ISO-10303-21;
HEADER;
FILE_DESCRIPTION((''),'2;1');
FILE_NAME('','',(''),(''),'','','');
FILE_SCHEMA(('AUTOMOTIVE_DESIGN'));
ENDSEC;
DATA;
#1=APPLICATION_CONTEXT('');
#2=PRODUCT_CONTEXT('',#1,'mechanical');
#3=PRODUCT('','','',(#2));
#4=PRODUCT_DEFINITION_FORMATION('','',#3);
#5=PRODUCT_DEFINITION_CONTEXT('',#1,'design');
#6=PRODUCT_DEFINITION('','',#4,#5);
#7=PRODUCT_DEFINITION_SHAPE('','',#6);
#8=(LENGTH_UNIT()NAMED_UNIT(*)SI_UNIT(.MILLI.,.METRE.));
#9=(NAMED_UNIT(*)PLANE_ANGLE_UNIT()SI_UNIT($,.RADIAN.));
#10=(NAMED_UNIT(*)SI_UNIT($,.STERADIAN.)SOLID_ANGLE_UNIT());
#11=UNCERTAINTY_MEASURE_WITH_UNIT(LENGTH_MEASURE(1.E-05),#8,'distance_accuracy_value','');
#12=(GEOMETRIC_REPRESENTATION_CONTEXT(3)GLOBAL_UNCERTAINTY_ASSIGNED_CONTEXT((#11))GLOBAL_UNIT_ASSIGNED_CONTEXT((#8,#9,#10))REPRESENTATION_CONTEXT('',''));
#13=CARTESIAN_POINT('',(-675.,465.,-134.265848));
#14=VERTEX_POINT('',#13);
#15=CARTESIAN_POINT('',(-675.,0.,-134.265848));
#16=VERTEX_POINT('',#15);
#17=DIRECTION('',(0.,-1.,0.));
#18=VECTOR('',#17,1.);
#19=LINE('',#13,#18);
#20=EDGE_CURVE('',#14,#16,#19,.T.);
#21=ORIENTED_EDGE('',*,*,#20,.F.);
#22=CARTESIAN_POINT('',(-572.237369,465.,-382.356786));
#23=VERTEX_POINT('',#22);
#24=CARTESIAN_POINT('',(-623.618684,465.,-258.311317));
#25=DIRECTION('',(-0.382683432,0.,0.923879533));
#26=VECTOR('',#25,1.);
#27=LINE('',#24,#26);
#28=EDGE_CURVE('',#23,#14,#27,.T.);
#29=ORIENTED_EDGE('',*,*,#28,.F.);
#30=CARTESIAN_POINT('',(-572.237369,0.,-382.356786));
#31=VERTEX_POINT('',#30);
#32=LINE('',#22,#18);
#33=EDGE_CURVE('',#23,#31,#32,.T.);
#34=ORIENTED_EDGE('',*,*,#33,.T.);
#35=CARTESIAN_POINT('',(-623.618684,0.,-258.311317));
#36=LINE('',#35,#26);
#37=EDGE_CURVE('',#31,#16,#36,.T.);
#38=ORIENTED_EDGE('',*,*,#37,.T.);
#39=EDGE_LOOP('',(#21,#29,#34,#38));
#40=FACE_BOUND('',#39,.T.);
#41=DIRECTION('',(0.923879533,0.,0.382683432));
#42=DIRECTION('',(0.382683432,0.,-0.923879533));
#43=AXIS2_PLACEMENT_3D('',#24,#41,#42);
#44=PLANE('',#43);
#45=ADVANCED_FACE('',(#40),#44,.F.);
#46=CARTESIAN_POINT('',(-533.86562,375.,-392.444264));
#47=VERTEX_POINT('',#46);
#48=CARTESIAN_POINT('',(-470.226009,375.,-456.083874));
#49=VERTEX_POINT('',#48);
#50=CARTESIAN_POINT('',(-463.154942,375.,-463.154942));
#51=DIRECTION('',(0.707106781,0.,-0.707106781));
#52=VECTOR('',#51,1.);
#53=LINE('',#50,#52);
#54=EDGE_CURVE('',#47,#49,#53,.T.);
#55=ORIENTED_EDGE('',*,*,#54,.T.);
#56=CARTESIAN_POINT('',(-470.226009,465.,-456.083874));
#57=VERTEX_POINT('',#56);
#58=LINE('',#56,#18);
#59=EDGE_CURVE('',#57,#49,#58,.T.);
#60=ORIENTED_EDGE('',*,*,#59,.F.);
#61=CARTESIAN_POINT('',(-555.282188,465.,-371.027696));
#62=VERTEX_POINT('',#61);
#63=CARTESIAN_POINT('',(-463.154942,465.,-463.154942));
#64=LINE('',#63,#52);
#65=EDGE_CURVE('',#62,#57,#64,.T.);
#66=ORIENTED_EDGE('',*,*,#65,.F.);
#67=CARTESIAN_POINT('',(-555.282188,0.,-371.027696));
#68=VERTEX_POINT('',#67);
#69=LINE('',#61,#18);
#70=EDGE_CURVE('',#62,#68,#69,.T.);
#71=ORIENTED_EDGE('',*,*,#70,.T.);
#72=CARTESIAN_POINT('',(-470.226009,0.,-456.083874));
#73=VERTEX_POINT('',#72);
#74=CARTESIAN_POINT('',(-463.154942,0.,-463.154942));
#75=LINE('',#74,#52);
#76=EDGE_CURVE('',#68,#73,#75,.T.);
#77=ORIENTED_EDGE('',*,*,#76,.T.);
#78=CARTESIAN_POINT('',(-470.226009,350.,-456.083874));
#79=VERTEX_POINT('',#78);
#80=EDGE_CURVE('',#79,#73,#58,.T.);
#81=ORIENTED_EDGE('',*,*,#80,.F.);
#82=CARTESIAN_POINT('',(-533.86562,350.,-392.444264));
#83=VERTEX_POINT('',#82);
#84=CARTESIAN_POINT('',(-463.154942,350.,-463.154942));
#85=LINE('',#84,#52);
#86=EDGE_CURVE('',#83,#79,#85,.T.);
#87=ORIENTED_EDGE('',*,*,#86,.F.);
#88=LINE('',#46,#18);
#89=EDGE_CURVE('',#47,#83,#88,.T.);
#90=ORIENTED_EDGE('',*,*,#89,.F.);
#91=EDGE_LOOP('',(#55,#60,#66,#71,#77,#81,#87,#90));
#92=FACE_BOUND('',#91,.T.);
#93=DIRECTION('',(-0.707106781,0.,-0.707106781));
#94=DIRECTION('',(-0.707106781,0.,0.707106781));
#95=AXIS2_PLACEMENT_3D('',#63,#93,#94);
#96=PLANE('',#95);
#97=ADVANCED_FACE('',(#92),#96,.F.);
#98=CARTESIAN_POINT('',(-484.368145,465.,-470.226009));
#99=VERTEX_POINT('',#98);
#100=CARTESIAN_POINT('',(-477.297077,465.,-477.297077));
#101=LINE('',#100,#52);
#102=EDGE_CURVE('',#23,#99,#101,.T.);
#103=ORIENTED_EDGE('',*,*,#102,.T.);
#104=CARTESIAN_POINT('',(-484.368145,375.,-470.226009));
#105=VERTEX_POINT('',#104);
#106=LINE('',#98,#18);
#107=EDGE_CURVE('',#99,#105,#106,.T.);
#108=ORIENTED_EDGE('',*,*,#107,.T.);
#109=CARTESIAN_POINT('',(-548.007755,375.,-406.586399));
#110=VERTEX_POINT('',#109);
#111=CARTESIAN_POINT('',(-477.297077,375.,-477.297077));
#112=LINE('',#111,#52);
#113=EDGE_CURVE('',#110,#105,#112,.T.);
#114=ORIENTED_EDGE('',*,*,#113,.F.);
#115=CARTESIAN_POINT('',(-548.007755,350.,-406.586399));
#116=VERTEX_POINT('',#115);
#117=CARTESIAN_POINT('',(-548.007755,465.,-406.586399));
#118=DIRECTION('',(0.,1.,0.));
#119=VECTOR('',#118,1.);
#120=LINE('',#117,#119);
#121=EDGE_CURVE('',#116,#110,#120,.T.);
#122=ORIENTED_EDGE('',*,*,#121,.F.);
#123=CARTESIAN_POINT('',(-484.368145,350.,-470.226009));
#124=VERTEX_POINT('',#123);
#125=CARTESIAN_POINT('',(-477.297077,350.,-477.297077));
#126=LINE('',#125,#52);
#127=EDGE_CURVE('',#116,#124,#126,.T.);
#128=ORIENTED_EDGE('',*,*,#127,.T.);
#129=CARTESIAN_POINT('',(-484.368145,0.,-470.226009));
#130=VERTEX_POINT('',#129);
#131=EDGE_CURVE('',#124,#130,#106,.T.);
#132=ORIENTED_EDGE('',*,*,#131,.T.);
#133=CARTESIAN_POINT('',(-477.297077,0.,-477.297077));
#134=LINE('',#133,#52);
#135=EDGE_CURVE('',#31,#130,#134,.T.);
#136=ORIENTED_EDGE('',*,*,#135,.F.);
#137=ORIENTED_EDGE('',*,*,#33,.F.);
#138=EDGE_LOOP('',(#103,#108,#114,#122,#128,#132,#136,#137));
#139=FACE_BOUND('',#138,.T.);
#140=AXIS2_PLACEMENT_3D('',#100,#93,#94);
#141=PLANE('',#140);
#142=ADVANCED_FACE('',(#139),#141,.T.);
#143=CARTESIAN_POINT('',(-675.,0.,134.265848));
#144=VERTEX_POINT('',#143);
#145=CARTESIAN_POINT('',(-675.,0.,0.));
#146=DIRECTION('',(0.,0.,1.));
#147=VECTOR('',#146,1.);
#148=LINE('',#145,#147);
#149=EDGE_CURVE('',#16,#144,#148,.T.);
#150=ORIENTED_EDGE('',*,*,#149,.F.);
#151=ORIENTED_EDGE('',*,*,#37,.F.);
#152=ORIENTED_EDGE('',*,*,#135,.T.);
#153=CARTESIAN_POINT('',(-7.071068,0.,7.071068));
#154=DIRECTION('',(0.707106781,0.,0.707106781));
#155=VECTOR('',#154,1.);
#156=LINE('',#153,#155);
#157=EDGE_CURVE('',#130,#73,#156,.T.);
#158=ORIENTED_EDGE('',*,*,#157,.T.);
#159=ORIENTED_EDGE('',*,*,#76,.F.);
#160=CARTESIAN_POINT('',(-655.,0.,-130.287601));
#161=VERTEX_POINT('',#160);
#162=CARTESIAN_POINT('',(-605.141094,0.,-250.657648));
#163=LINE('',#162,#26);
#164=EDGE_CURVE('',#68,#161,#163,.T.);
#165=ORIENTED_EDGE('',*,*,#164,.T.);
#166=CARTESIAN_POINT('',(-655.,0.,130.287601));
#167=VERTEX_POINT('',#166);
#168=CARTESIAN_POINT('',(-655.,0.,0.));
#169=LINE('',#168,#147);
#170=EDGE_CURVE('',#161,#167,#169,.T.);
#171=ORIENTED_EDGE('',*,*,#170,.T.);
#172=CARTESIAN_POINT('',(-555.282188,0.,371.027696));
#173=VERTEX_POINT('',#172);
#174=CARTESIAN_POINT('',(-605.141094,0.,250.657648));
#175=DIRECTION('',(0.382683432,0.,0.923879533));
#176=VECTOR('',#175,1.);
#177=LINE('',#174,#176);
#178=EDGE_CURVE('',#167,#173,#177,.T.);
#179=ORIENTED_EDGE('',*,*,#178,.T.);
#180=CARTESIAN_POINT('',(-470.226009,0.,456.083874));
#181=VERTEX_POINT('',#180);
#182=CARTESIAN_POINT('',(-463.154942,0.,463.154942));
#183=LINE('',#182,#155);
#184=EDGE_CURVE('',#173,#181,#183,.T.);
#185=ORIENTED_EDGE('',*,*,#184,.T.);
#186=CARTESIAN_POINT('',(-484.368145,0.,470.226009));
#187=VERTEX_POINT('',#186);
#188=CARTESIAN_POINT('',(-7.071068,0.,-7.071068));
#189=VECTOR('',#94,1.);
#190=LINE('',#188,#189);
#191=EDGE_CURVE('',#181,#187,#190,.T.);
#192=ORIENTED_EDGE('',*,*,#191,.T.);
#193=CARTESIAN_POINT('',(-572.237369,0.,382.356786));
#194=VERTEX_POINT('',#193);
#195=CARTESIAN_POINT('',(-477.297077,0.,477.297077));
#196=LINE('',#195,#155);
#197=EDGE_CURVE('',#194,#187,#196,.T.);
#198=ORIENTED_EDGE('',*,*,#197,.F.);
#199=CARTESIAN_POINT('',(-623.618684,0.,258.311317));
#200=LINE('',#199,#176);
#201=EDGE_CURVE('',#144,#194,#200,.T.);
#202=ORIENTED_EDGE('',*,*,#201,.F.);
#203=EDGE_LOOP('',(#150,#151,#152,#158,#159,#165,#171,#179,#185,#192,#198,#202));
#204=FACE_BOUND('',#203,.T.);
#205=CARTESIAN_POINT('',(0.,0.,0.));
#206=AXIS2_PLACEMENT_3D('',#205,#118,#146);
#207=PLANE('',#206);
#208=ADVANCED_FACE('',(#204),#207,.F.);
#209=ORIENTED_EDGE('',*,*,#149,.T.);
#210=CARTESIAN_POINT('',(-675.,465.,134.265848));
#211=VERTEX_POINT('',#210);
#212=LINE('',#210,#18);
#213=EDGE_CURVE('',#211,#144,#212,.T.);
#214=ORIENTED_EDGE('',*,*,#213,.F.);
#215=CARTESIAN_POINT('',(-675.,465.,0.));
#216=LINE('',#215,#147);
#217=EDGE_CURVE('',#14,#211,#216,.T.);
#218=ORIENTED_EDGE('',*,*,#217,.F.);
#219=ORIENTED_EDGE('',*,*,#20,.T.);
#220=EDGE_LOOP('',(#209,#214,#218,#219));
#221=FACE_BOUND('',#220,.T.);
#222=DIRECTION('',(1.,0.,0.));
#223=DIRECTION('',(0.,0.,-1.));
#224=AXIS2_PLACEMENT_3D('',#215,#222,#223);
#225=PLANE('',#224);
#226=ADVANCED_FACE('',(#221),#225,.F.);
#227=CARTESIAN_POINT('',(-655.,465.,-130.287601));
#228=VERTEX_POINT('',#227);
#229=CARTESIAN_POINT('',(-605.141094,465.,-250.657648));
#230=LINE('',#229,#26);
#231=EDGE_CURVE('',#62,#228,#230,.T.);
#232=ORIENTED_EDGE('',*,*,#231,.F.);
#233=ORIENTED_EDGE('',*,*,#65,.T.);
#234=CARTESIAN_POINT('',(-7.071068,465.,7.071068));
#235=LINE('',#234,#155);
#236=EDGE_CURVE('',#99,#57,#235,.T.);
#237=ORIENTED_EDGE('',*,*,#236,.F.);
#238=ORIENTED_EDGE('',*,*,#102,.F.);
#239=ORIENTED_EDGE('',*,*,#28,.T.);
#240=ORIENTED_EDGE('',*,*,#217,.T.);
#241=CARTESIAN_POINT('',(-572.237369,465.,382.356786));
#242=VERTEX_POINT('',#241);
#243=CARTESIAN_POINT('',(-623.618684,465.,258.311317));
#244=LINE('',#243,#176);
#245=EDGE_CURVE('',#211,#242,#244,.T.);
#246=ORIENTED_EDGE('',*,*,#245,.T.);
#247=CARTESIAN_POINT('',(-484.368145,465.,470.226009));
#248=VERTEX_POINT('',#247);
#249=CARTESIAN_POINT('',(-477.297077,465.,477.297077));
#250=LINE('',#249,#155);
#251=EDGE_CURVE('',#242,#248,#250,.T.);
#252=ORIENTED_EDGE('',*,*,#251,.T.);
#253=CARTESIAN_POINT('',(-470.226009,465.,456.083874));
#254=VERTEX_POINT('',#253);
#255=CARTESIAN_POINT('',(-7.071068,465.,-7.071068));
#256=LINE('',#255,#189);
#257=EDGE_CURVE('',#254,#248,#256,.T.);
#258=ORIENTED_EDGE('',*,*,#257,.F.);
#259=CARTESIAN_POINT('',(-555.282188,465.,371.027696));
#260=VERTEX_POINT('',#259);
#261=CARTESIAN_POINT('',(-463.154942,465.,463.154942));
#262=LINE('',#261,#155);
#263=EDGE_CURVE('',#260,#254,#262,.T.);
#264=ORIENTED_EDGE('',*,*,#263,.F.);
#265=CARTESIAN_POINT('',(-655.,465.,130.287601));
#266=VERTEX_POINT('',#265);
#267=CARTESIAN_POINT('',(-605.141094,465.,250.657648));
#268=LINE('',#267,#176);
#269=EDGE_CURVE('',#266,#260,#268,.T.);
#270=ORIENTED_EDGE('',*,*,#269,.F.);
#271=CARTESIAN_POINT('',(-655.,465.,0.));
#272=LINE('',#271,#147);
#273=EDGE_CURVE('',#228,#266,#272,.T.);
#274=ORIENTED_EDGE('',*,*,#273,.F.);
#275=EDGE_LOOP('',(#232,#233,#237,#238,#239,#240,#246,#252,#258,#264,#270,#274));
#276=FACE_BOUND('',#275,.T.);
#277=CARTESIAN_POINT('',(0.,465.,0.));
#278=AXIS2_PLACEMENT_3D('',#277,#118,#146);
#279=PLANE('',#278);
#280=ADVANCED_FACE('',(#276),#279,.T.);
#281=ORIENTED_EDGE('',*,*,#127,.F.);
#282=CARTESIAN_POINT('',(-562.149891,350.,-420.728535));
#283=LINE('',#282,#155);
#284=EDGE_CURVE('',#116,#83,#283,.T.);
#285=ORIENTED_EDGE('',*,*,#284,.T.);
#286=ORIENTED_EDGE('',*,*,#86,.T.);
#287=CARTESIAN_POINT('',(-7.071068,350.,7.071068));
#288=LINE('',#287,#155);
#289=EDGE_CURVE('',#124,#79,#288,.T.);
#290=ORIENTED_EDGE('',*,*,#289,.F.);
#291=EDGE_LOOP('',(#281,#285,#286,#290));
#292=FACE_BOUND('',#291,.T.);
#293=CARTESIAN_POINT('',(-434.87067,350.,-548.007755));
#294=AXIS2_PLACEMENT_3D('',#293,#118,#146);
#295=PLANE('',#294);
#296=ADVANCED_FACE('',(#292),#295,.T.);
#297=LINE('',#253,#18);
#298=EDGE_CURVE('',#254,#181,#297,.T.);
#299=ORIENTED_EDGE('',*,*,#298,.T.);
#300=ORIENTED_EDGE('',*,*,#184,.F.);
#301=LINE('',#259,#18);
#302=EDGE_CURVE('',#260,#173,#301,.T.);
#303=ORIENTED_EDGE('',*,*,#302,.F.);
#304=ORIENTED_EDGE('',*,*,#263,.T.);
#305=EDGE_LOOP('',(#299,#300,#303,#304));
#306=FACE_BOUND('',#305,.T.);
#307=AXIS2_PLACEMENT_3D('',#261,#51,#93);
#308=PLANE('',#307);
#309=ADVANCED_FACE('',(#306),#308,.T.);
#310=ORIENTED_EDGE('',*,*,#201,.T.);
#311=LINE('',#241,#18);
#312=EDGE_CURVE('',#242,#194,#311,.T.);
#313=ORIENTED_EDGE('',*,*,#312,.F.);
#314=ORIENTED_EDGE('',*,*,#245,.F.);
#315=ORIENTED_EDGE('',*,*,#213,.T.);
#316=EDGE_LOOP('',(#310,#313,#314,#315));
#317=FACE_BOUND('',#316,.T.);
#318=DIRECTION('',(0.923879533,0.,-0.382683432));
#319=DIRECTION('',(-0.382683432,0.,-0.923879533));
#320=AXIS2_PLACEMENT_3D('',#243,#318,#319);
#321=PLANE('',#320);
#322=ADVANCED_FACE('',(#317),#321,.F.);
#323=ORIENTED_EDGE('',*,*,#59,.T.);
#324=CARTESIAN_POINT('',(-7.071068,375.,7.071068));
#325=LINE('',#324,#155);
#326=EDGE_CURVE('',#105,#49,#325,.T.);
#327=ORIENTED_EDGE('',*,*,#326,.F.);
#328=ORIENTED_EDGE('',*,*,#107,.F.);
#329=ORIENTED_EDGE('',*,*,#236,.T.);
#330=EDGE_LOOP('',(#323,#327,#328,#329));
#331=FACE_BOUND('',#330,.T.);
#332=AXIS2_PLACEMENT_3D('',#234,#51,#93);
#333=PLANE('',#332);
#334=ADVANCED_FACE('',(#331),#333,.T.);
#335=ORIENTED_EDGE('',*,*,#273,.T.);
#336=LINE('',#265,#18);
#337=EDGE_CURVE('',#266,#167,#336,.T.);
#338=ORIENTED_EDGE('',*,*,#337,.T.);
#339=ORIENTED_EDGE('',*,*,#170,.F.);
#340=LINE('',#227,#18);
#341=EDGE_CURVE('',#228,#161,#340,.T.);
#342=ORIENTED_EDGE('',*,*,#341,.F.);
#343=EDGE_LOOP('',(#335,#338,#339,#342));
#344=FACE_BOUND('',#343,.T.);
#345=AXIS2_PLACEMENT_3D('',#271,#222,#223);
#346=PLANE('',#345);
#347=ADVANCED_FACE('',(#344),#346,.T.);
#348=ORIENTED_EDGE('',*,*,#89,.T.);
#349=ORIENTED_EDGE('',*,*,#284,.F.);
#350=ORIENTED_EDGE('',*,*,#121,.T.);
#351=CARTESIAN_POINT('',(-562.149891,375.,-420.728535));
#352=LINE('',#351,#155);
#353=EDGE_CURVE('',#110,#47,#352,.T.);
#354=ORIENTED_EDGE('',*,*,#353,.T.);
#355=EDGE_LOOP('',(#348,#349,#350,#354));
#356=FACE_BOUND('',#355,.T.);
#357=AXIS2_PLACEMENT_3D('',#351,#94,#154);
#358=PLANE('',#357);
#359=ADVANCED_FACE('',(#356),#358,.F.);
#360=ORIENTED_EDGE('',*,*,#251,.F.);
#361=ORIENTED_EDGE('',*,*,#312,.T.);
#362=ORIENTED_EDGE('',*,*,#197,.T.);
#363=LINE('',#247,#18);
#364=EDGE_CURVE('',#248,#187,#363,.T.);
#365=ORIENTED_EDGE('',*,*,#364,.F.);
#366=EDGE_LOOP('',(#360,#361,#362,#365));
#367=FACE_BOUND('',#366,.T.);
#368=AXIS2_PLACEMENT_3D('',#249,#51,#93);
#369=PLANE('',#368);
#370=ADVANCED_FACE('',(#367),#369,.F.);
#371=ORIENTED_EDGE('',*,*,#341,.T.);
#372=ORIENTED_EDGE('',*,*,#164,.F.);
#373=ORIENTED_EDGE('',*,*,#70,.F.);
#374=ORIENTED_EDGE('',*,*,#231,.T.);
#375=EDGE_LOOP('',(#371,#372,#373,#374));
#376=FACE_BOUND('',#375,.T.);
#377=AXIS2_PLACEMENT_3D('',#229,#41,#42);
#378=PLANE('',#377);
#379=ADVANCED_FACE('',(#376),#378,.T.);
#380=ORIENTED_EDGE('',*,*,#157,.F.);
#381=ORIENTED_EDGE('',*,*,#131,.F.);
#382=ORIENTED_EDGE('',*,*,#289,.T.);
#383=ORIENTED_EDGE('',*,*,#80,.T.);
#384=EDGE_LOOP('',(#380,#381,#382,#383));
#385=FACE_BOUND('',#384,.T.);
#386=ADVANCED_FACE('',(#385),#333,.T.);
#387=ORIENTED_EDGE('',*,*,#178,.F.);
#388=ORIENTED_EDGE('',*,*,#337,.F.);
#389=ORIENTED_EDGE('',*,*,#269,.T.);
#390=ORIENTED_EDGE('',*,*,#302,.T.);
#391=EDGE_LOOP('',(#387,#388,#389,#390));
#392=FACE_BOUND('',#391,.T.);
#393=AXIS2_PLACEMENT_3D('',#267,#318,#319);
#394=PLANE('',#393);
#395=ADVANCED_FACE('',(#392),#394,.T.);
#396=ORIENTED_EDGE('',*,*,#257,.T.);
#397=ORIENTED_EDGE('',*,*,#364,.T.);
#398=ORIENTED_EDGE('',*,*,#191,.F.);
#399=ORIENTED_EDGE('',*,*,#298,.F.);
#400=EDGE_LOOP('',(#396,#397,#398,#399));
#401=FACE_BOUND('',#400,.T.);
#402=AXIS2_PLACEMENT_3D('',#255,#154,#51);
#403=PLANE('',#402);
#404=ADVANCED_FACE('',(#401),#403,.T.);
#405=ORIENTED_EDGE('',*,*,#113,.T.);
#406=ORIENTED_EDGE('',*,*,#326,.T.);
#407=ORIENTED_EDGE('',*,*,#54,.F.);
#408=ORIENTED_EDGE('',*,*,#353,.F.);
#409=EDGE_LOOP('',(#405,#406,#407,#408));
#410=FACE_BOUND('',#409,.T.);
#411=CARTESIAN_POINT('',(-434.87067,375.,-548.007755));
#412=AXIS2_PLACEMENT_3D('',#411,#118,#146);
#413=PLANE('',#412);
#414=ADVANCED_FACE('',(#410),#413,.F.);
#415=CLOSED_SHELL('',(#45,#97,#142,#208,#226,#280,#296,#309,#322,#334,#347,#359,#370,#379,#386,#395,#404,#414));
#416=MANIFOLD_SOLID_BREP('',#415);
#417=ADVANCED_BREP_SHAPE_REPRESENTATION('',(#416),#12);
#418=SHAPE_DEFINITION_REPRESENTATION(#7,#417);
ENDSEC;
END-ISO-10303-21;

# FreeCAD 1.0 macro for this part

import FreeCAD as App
import Part
import Sketcher
Q = App.Units.Quantity


def add_polygon(sketch, points):
    """Adds a closed chain of lines whose ends are joined by coincident constraints."""
    first, n = sketch.GeometryCount, len(points)
    for a, b in zip(points, points[1:] + points[:1]):
        sketch.addGeometry(Part.LineSegment(App.Vector(*a, 0), App.Vector(*b, 0)), False)
    for i in range(n):
        sketch.addConstraint(Sketcher.Constraint("Coincident", first + i, 2, first + (i + 1) % n, 1))

doc = App.newDocument("Part")
params = doc.addObject("Spreadsheet::Sheet", "Params")
for row, (alias, value) in enumerate([
    ("sketch1_length", "20 mm"),
    ("pad1_length", "465 mm"),
    ("sketch2_width", "180 mm"),
    ("sketch2_height", "25 mm"),
    ("pocket1_length", "40 mm"),
], start=1):
    params.set(f"A{row}", alias)
    params.set(f"B{row}", "=" + value)
    params.setAlias(f"B{row}", alias)

body = doc.addObject("PartDesign::Body", "Body")

# Sketch on XZ plane
sketch1 = body.newObject("Sketcher::SketchObject", "Sketch")
sketch1.AttachmentSupport = (doc.getObject("XZ_Plane"), [""])
sketch1.MapMode = "FlatFace"
add_polygon(sketch1, [(-470, 456), (-555, 371), (-655, 130), (-655, -130), (-555, -371), (-470, -456), (-484, -470), (-572, -382), (-675, -134), (-675, 134), (-572, 382), (-484, 470)])  # lines 0-11
sketch1.addConstraint([
    Sketcher.Constraint("Vertical", 2),
    Sketcher.Constraint("Vertical", 8),
    Sketcher.Constraint("Symmetric", 0, 2, 3, 2, -1),
    Sketcher.Constraint("Symmetric", 6, 2, 9, 2, -1),
    Sketcher.Constraint("Symmetric", 5, 2, 10, 2, -1),
    Sketcher.Constraint("Symmetric", 4, 2, 11, 2, -1),
    Sketcher.Constraint("Perpendicular", 0, 4),
    Sketcher.Constraint("Perpendicular", 4, 5),
    Sketcher.Constraint("Perpendicular", 5, 6),
    Sketcher.Constraint("Parallel", 3, 7),
    Sketcher.Constraint("Parallel", 1, 9),
    Sketcher.Constraint("Equal", 1, 3),
    Sketcher.Constraint("Distance", 5, Q("20 mm")),
    Sketcher.Constraint("DistanceX", 1, 2, -1, 1, Q("655 mm")),
    Sketcher.Constraint("DistanceX", 7, 2, -1, 1, Q("675 mm")),
    Sketcher.Constraint("Angle", 1, Q("-112.5 deg")),
    Sketcher.Constraint("DistanceY", 2, 2, 2, 1, Q("260.575201 mm")),
    Sketcher.Constraint("Distance", 0, Q("120.287601 mm")),
    Sketcher.Constraint("Distance", 1, Q("260.575201 mm")),
    Sketcher.Constraint("DistanceY", 8, 1, 8, 2, Q("268.531696 mm")),
])
sketch1.setExpression("Constraints[24]", "Params.sketch1_length")
pad1 = body.newObject("PartDesign::Pad", "Pad")
pad1.Profile = sketch1
pad1.setExpression("Length", "Params.pad1_length")
pad1.Reversed = True

# Sketch on an angled plane
sketch2 = body.newObject("Sketcher::SketchObject", "Sketch001")
sketch2.Placement = App.Placement(App.Vector(-463.154942, 0, -463.154942), App.Rotation(App.Vector(0.707106781, 0, -0.707106781), App.Vector(0, 0.999999999, 0), App.Vector(0.707106781, 0, 0.707106781), "ZXY"))
add_polygon(sketch2, [(-100, 375), (-100, 350), (80, 350), (80, 375)])  # lines 0-3
sketch2.addConstraint([
    Sketcher.Constraint("Vertical", 0),
    Sketcher.Constraint("Horizontal", 1),
    Sketcher.Constraint("Vertical", 2),
    Sketcher.Constraint("Horizontal", 3),
    Sketcher.Constraint("DistanceX", 1, 1, 1, 2, Q("180 mm")),
    Sketcher.Constraint("DistanceY", 0, 2, 0, 1, Q("25 mm")),
    Sketcher.Constraint("DistanceX", 0, 2, -1, 1, Q("100 mm")),
    Sketcher.Constraint("DistanceY", -1, 1, 0, 2, Q("350 mm")),
])
sketch2.setExpression("Constraints[8]", "Params.sketch2_width")
sketch2.setExpression("Constraints[9]", "Params.sketch2_height")
pocket1 = body.newObject("PartDesign::Pocket", "Pocket")
pocket1.Profile = sketch2
pocket1.setExpression("Length", "Params.pocket1_length")

doc.recompute()
